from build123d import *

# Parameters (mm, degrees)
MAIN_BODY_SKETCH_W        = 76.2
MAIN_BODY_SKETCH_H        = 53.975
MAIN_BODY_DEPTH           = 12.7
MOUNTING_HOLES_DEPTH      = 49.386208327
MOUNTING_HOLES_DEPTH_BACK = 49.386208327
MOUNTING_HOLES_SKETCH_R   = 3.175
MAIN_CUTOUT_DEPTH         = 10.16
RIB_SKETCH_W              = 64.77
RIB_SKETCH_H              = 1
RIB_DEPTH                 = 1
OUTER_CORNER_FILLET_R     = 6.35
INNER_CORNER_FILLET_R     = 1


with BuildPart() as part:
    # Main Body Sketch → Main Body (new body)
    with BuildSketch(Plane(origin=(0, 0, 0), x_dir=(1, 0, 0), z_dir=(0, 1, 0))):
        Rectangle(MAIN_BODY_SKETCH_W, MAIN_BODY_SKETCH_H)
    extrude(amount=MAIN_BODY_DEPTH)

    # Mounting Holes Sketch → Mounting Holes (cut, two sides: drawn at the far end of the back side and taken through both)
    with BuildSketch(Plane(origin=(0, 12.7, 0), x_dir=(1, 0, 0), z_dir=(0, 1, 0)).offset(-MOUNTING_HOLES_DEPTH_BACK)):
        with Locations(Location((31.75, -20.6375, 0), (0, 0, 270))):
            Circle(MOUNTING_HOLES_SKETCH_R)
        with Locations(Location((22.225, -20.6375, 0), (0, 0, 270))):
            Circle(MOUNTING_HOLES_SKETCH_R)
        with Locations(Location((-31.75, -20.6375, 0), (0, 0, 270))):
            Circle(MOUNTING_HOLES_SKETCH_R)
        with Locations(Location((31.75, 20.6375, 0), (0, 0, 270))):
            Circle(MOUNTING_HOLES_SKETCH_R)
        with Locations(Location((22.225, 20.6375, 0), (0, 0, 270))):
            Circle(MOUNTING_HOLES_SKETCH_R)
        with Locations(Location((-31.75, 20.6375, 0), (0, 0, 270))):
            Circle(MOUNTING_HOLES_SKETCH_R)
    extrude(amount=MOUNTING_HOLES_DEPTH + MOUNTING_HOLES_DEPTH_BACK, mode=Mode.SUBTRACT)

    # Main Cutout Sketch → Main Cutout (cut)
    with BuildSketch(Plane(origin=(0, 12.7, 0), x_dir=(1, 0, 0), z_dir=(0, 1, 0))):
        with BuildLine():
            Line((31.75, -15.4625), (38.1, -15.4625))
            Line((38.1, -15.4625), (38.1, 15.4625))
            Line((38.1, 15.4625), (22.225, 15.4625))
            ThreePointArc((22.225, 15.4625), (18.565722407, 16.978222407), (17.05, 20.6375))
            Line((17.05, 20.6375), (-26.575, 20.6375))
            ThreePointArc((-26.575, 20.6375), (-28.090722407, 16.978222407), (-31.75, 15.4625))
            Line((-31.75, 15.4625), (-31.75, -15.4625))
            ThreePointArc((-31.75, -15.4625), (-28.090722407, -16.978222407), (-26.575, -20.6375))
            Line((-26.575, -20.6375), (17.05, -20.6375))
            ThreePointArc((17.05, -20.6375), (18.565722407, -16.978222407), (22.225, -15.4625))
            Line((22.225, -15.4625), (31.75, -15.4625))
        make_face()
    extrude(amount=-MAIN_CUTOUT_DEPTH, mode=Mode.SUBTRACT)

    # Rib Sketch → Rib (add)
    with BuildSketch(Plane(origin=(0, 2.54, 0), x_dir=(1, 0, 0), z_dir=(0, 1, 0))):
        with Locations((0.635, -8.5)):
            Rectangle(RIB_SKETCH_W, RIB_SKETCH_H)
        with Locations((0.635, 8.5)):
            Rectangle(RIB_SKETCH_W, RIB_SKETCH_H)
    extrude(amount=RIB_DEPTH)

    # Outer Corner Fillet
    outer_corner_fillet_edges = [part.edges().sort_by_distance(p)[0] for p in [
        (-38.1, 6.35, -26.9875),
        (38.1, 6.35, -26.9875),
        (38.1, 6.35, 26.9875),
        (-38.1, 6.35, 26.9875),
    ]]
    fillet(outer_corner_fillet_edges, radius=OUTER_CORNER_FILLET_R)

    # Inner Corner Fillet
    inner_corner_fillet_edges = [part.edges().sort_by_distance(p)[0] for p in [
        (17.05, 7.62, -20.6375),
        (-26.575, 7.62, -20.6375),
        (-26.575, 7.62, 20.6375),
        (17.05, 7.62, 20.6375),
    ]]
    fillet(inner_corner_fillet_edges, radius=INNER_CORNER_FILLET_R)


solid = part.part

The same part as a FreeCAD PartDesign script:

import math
import FreeCAD as App
import Part
import Sketcher

V = App.Vector
Q = App.Units.Quantity


def edges_at(feature, points):
    """Names of the edges that pass closest to the given points."""
    edges = feature.Shape.Edges
    near = lambda p: min(range(len(edges)), key=lambda i: edges[i].distToShape(Part.Vertex(*p))[0])
    return sorted({f"Edge{near(p) + 1}" for p in points})

doc = App.newDocument("Part")
body = doc.addObject("PartDesign::Body", "Body")

# Sketch on XZ plane
sketch1 = body.newObject("Sketcher::SketchObject", "Sketch")
sketch1.AttachmentSupport = (doc.getObject("XZ_Plane"), [""])
sketch1.MapMode = "FlatFace"
sketch1.addGeometry([
    Part.LineSegment(V(-38, -27, 0), V(-38, 27, 0)),
    Part.LineSegment(V(-38, 27, 0), V(38, 27, 0)),
    Part.LineSegment(V(38, 27, 0), V(38, -27, 0)),
    Part.LineSegment(V(38, -27, 0), V(-38, -27, 0)),
], False)
sketch1.addConstraint([
    Sketcher.Constraint("Coincident", 0, 2, 1, 1),
    Sketcher.Constraint("Coincident", 1, 2, 2, 1),
    Sketcher.Constraint("Coincident", 2, 2, 3, 1),
    Sketcher.Constraint("Coincident", 3, 2, 0, 1),
    Sketcher.Constraint("Vertical", 0),
    Sketcher.Constraint("Horizontal", 1),
    Sketcher.Constraint("Vertical", 2),
    Sketcher.Constraint("Horizontal", 3),
    Sketcher.Constraint("Symmetric", 0, 2, 2, 2, -1, 1),
    Sketcher.Constraint("DistanceX", 1, 1, 1, 2, Q("3 in")),
    Sketcher.Constraint("DistanceY", 0, 1, 0, 2, Q("2.125 in")),
])
pad1 = body.newObject("PartDesign::Pad", "Pad")
pad1.Profile = sketch1
pad1.Length = Q("0.5 in")
pad1.Reversed = True

# Sketch on XZ plane
sketch2 = body.newObject("Sketcher::SketchObject", "Sketch001")
sketch2.AttachmentSupport = (doc.getObject("XZ_Plane"), [""])
sketch2.MapMode = "FlatFace"
sketch2.AttachmentOffset = App.Placement(V(0, 0, -0.5 * 25.4), App.Rotation())
sketch2.addGeometry([
    Part.Circle(V(31.8, 20.6, 0), V(0, 0, 1), 3.2),  # 0
    Part.Circle(V(22.2, 20.6, 0), V(0, 0, 1), 3.2),  # 1
    Part.Circle(V(-31.8, 20.6, 0), V(0, 0, 1), 3.2),  # 2
    Part.Circle(V(31.8, -20.6, 0), V(0, 0, 1), 3.2),  # 3
    Part.Circle(V(22.2, -20.6, 0), V(0, 0, 1), 3.2),  # 4
    Part.Circle(V(-31.8, -20.6, 0), V(0, 0, 1), 3.2),  # 5
], False)
sketch2.addConstraint([
    Sketcher.Constraint("Equal", 0, 1),
    Sketcher.Constraint("Equal", 1, 2),
    Sketcher.Constraint("Equal", 2, 3),
    Sketcher.Constraint("Equal", 3, 4),
    Sketcher.Constraint("Equal", 4, 5),
    Sketcher.Constraint("Symmetric", 2, 3, 3, 3, -1, 1),
    Sketcher.Constraint("Symmetric", 0, 3, 5, 3, -1, 1),
    Sketcher.Constraint("Symmetric", 0, 3, 2, 3, -2),
    Sketcher.Constraint("Symmetric", 1, 3, 4, 3, -1),
    Sketcher.Constraint("Horizontal", 0, 3, 1, 3),
    Sketcher.Constraint("Diameter", 0, Q("0.25 in")),
    Sketcher.Constraint("DistanceX", 2, 3, 0, 3, Q("2.5 in")),
    Sketcher.Constraint("DistanceY", -1, 1, 0, 3, Q("0.8125 in")),
    Sketcher.Constraint("DistanceX", -1, 1, 1, 3, Q("0.875 in")),
])
pocket1 = body.newObject("PartDesign::Pocket", "Pocket")
pocket1.Profile = sketch2
pocket1.Type = "ThroughAll"
pocket1.Midplane = True

# Sketch on XZ plane
sketch3 = body.newObject("Sketcher::SketchObject", "Sketch002")
sketch3.AttachmentSupport = (doc.getObject("XZ_Plane"), [""])
sketch3.MapMode = "FlatFace"
sketch3.AttachmentOffset = App.Placement(V(0, 0, -0.5 * 25.4), App.Rotation())
sketch3.addGeometry([
    Part.LineSegment(V(38, 15, 0), V(38, -15, 0)),  # 0
    Part.LineSegment(V(38, -15, 0), V(22, -15, 0)),  # 1
    Part.ArcOfCircle(Part.Circle(V(22, -21, 0), V(0, 0, 1), 5), math.radians(90), math.radians(180)),  # 2
    Part.LineSegment(V(17, -21, 0), V(-27, -21, 0)),  # 3
    Part.ArcOfCircle(Part.Circle(V(-32, -21, 0), V(0, 0, 1), 5), math.radians(0), math.radians(90)),  # 4
    Part.LineSegment(V(-32, -15, 0), V(-32, 15, 0)),  # 5
    Part.ArcOfCircle(Part.Circle(V(-32, 21, 0), V(0, 0, 1), 5), math.radians(-90), math.radians(0)),  # 6
    Part.LineSegment(V(-27, 21, 0), V(17, 21, 0)),  # 7
    Part.ArcOfCircle(Part.Circle(V(22, 21, 0), V(0, 0, 1), 5), math.radians(180), math.radians(270)),  # 8
    Part.LineSegment(V(22, 15, 0), V(38, 15, 0)),  # 9
], False)
sketch3.addConstraint([
    Sketcher.Constraint("Coincident", 0, 2, 1, 1),
    Sketcher.Constraint("Tangent", 1, 2, 2, 1),
    Sketcher.Constraint("Coincident", 2, 2, 3, 1),
    Sketcher.Constraint("Coincident", 3, 2, 4, 1),
    Sketcher.Constraint("Coincident", 4, 2, 5, 1),
    Sketcher.Constraint("Coincident", 5, 2, 6, 1),
    Sketcher.Constraint("Coincident", 6, 2, 7, 1),
    Sketcher.Constraint("Coincident", 7, 2, 8, 1),
    Sketcher.Constraint("Tangent", 8, 2, 9, 1),
    Sketcher.Constraint("Coincident", 9, 2, 0, 1),
    Sketcher.Constraint("Vertical", 0),
    Sketcher.Constraint("Horizontal", 1),
    Sketcher.Constraint("Horizontal", 3),
    Sketcher.Constraint("Vertical", 5),
    Sketcher.Constraint("Horizontal", 7),
    Sketcher.Constraint("Horizontal", 9),
    Sketcher.Constraint("Equal", 2, 4),
    Sketcher.Constraint("Equal", 4, 6),
    Sketcher.Constraint("Equal", 6, 8),
    Sketcher.Constraint("Symmetric", 4, 3, 6, 3, -1),
    Sketcher.Constraint("Symmetric", 2, 3, 8, 3, -1),
    Sketcher.Constraint("Horizontal", 2, 3, 4, 3),
    Sketcher.Constraint("Horizontal", 4, 3, 2, 2),
    Sketcher.Constraint("Horizontal", 8, 3, 6, 2),
    Sketcher.Constraint("Vertical", 6, 3, 4, 2),
    Sketcher.Constraint("DistanceX", -1, 1, 0, 2, Q("1.5 in")),
    Sketcher.Constraint("DistanceX", 1, 2, 1, 1, Q("0.625 in")),
    Sketcher.Constraint("DistanceX", 4, 3, -1, 1, Q("1.25 in")),
    Sketcher.Constraint("Radius", 2, 5.175),
    Sketcher.Constraint("DistanceY", 2, 3, -1, 1, Q("0.8125 in")),
])
pocket2 = body.newObject("PartDesign::Pocket", "Pocket001")
pocket2.Profile = sketch3
pocket2.Length = Q("0.4 in")
pocket2.Reversed = True

# Sketch on XZ plane
sketch4 = body.newObject("Sketcher::SketchObject", "Sketch003")
sketch4.AttachmentSupport = (doc.getObject("XZ_Plane"), [""])
sketch4.MapMode = "FlatFace"
sketch4.AttachmentOffset = App.Placement(V(0, 0, -0.1 * 25.4), App.Rotation())
sketch4.addGeometry([
    Part.LineSegment(V(-31.8, 8, 0), V(-31.8, 9, 0)),  # 0
    Part.LineSegment(V(-31.8, 9, 0), V(33, 9, 0)),  # 1
    Part.LineSegment(V(33, 9, 0), V(33, 8, 0)),  # 2
    Part.LineSegment(V(33, 8, 0), V(-31.8, 8, 0)),  # 3
    Part.LineSegment(V(-31.8, -9, 0), V(-31.8, -8, 0)),  # 4
    Part.LineSegment(V(-31.8, -8, 0), V(33, -8, 0)),  # 5
    Part.LineSegment(V(33, -8, 0), V(33, -9, 0)),  # 6
    Part.LineSegment(V(33, -9, 0), V(-31.8, -9, 0)),  # 7
], False)
sketch4.addConstraint([
    Sketcher.Constraint("Coincident", 0, 2, 1, 1),
    Sketcher.Constraint("Coincident", 1, 2, 2, 1),
    Sketcher.Constraint("Coincident", 2, 2, 3, 1),
    Sketcher.Constraint("Coincident", 3, 2, 0, 1),
    Sketcher.Constraint("Coincident", 4, 2, 5, 1),
    Sketcher.Constraint("Coincident", 5, 2, 6, 1),
    Sketcher.Constraint("Coincident", 6, 2, 7, 1),
    Sketcher.Constraint("Coincident", 7, 2, 4, 1),
    Sketcher.Constraint("Vertical", 0),
    Sketcher.Constraint("Horizontal", 1),
    Sketcher.Constraint("Vertical", 2),
    Sketcher.Constraint("Horizontal", 3),
    Sketcher.Constraint("Vertical", 4),
    Sketcher.Constraint("Horizontal", 5),
    Sketcher.Constraint("Vertical", 6),
    Sketcher.Constraint("Horizontal", 7),
    Sketcher.Constraint("Symmetric", 3, 2, 4, 2, -1),
    Sketcher.Constraint("Symmetric", 1, 2, 6, 2, -1),
    Sketcher.Constraint("DistanceX", 1, 1, 1, 2, Q("2.55 in")),
    Sketcher.Constraint("DistanceX", -1, 1, 1, 2, Q("1.3 in")),
    Sketcher.Constraint("DistanceY", 0, 1, 0, 2, 1.0),
    Sketcher.Constraint("DistanceY", -1, 1, 0, 2, 9.0),
])
pad2 = body.newObject("PartDesign::Pad", "Pad001")
pad2.Profile = sketch4
pad2.Length = 1
pad2.Reversed = True
doc.recompute()

fillet = body.newObject("PartDesign::Fillet", "Fillet")
fillet.Base = (pad2, edges_at(pad2, [
    (-38.1, 6.35, -26.988),
    (38.1, 6.35, -26.988),
    (38.1, 6.35, 26.988),
    (-38.1, 6.35, 26.988),
]))
fillet.Radius = Q("0.25 in")
doc.recompute()

fillet2 = body.newObject("PartDesign::Fillet", "Fillet001")
fillet2.Base = (fillet, edges_at(fillet, [
    (17.05, 7.62, -20.637),
    (-26.575, 7.62, -20.637),
    (-26.575, 7.62, 20.637),
    (17.05, 7.62, 20.637),
]))
fillet2.Radius = 1

doc.recompute()
